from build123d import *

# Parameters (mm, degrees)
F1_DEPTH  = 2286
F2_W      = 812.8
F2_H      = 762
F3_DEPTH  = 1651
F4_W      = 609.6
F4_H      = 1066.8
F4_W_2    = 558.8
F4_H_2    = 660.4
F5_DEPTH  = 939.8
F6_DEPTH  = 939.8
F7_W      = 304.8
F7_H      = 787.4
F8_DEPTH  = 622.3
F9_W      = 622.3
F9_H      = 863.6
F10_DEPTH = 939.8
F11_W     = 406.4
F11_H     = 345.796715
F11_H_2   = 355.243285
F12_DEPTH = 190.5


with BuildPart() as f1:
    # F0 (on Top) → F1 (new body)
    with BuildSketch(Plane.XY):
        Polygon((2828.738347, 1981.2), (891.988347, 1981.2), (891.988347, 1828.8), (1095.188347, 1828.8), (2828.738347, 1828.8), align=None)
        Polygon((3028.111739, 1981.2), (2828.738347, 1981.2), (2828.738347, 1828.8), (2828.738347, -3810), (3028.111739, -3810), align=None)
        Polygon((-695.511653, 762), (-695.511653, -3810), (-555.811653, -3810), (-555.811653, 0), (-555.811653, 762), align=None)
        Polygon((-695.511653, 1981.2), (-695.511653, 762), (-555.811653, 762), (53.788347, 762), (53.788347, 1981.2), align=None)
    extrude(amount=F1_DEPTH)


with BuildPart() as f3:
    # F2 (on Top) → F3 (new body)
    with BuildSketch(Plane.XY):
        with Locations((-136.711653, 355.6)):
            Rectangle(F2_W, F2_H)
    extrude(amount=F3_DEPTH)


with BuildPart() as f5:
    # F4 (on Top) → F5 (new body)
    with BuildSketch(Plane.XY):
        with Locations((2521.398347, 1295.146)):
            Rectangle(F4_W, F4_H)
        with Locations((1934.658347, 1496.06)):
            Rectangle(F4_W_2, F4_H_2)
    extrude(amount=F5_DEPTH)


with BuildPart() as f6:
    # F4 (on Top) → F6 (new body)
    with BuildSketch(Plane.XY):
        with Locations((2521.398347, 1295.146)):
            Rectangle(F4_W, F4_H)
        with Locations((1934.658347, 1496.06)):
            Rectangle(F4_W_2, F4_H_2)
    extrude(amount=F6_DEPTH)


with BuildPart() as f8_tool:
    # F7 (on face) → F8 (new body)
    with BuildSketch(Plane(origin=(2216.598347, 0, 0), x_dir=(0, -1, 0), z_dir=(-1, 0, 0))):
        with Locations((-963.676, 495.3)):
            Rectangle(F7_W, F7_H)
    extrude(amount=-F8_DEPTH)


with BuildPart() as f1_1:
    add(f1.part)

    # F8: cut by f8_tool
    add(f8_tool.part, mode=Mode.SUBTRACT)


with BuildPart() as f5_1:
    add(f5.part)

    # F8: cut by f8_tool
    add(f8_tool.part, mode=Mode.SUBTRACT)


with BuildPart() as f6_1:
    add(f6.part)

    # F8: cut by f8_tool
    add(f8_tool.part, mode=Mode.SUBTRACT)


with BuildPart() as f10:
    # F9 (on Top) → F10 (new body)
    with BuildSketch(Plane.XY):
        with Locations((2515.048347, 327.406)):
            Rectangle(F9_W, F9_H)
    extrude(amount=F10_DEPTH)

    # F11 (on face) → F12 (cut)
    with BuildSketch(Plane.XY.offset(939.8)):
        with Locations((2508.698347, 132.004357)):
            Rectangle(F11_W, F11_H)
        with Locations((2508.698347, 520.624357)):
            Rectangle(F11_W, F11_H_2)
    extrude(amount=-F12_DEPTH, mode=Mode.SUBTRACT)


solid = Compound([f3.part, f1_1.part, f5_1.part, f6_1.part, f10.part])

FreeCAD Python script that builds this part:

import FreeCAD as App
import Part
import Sketcher
Q = App.Units.Quantity

doc = App.newDocument("Part")
body = doc.addObject("PartDesign::Body", "Body")
body.AllowCompound = True

# Sketch on XY plane
sketch1 = doc.addObject("Sketcher::SketchObject", "Sketch")
body.addObject(sketch1)
sketch1.AttachmentSupport = (doc.XY_Plane, [""])
sketch1.MapMode = "FlatFace"
sketch1.addGeometry(Part.LineSegment(App.Vector(892, 1981, 0), App.Vector(892, 1829, 0)), False)
sketch1.addGeometry(Part.LineSegment(App.Vector(892, 1829, 0), App.Vector(2829, 1829, 0)), False)
sketch1.addGeometry(Part.LineSegment(App.Vector(2829, 1829, 0), App.Vector(2829, -3810, 0)), False)
sketch1.addGeometry(Part.LineSegment(App.Vector(2829, -3810, 0), App.Vector(3028, -3810, 0)), False)
sketch1.addGeometry(Part.LineSegment(App.Vector(3028, -3810, 0), App.Vector(3028, 1981, 0)), False)
sketch1.addGeometry(Part.LineSegment(App.Vector(3028, 1981, 0), App.Vector(892, 1981, 0)), False)
sketch1.addGeometry(Part.LineSegment(App.Vector(-696, -3810, 0), App.Vector(-556, -3810, 0)), False)
sketch1.addGeometry(Part.LineSegment(App.Vector(-556, -3810, 0), App.Vector(-556, 762, 0)), False)
sketch1.addGeometry(Part.LineSegment(App.Vector(-556, 762, 0), App.Vector(54, 762, 0)), False)
sketch1.addGeometry(Part.LineSegment(App.Vector(54, 762, 0), App.Vector(54, 1981, 0)), False)
sketch1.addGeometry(Part.LineSegment(App.Vector(54, 1981, 0), App.Vector(-696, 1981, 0)), False)
sketch1.addGeometry(Part.LineSegment(App.Vector(-696, 1981, 0), App.Vector(-696, -3810, 0)), False)
sketch1.addConstraint(Sketcher.Constraint("Coincident", 0, 2, 1, 1))
sketch1.addConstraint(Sketcher.Constraint("Coincident", 1, 2, 2, 1))
sketch1.addConstraint(Sketcher.Constraint("Coincident", 2, 2, 3, 1))
sketch1.addConstraint(Sketcher.Constraint("Coincident", 3, 2, 4, 1))
sketch1.addConstraint(Sketcher.Constraint("Coincident", 4, 2, 5, 1))
sketch1.addConstraint(Sketcher.Constraint("Coincident", 5, 2, 0, 1))
sketch1.addConstraint(Sketcher.Constraint("Coincident", 6, 2, 7, 1))
sketch1.addConstraint(Sketcher.Constraint("Coincident", 7, 2, 8, 1))
sketch1.addConstraint(Sketcher.Constraint("Coincident", 8, 2, 9, 1))
sketch1.addConstraint(Sketcher.Constraint("Coincident", 9, 2, 10, 1))
sketch1.addConstraint(Sketcher.Constraint("Coincident", 10, 2, 11, 1))
sketch1.addConstraint(Sketcher.Constraint("Coincident", 11, 2, 6, 1))
sketch1.addConstraint(Sketcher.Constraint("Vertical", 0))
sketch1.addConstraint(Sketcher.Constraint("Horizontal", 1))
sketch1.addConstraint(Sketcher.Constraint("Vertical", 2))
sketch1.addConstraint(Sketcher.Constraint("Horizontal", 3))
sketch1.addConstraint(Sketcher.Constraint("Vertical", 4))
sketch1.addConstraint(Sketcher.Constraint("Horizontal", 5))
sketch1.addConstraint(Sketcher.Constraint("Horizontal", 6))
sketch1.addConstraint(Sketcher.Constraint("Vertical", 7))
sketch1.addConstraint(Sketcher.Constraint("Horizontal", 8))
sketch1.addConstraint(Sketcher.Constraint("Vertical", 9))
sketch1.addConstraint(Sketcher.Constraint("Horizontal", 10))
sketch1.addConstraint(Sketcher.Constraint("Vertical", 11))
sketch1.addConstraint(Sketcher.Constraint("Horizontal", 3, 2, 6, 2))
sketch1.addConstraint(Sketcher.Constraint("Horizontal", 5, 2, 9, 2))
sketch1.addConstraint(Sketcher.Constraint("DistanceX", 8, 1, 8, 2, Q("24 in")))
sketch1.addConstraint(Sketcher.Constraint("DistanceY", 0, 2, 0, 1, Q("6 in")))
sketch1.addConstraint(Sketcher.Constraint("DistanceY", 2, 2, 2, 1, Q("222 in")))
sketch1.addConstraint(Sketcher.Constraint("DistanceY", 7, 1, 7, 2, Q("180 in")))
sketch1.addConstraint(Sketcher.Constraint("DistanceX", 6, 1, 6, 2, Q("5.5 in")))
sketch1.addConstraint(Sketcher.Constraint("DistanceY", -1, 1, 0, 2, Q("72 in")))
sketch1.addConstraint(Sketcher.Constraint("DistanceX", 6, 2, 0, 2, Q("57 in")))
sketch1.addConstraint(Sketcher.Constraint("DistanceX", 1, 1, 1, 2, Q("76.25 in")))
sketch1.addConstraint(Sketcher.Constraint("DistanceX", 3, 1, 3, 2, 199.373392))
sketch1.addConstraint(Sketcher.Constraint("DistanceX", -1, 1, 3, 2, 3028.111739))
pad1 = doc.addObject("PartDesign::Pad", "Pad")
body.addObject(pad1)
pad1.Profile = sketch1
pad1.Length = Q("90 in")
body2 = doc.addObject("PartDesign::Body", "Body001")

# Sketch on XY plane
sketch2 = doc.addObject("Sketcher::SketchObject", "Sketch001")
body2.addObject(sketch2)
sketch2.AttachmentSupport = (doc.getObject("XY_Plane001"), [""])
sketch2.MapMode = "FlatFace"
sketch2.addGeometry(Part.LineSegment(App.Vector(-543, 737, 0), App.Vector(-543, -25, 0)), False)
sketch2.addGeometry(Part.LineSegment(App.Vector(-543, -25, 0), App.Vector(270, -25, 0)), False)
sketch2.addGeometry(Part.LineSegment(App.Vector(270, -25, 0), App.Vector(270, 737, 0)), False)
sketch2.addGeometry(Part.LineSegment(App.Vector(270, 737, 0), App.Vector(-543, 737, 0)), False)
sketch2.addConstraint(Sketcher.Constraint("Coincident", 0, 2, 1, 1))
sketch2.addConstraint(Sketcher.Constraint("Coincident", 1, 2, 2, 1))
sketch2.addConstraint(Sketcher.Constraint("Coincident", 2, 2, 3, 1))
sketch2.addConstraint(Sketcher.Constraint("Coincident", 3, 2, 0, 1))
sketch2.addConstraint(Sketcher.Constraint("Vertical", 0))
sketch2.addConstraint(Sketcher.Constraint("Horizontal", 1))
sketch2.addConstraint(Sketcher.Constraint("Vertical", 2))
sketch2.addConstraint(Sketcher.Constraint("Horizontal", 3))
sketch2.addConstraint(Sketcher.Constraint("DistanceX", 1, 1, 1, 2, Q("32 in")))
sketch2.addConstraint(Sketcher.Constraint("DistanceY", 0, 2, 0, 1, Q("30 in")))
sketch2.addConstraint(Sketcher.Constraint("DistanceY", 0, 2, -1, 1, Q("1 in")))
sketch2.addConstraint(Sketcher.Constraint("DistanceX", 0, 2, -1, 1, 543.111653))
pad2 = doc.addObject("PartDesign::Pad", "Pad001")
body2.addObject(pad2)
pad2.Profile = sketch2
pad2.Length = Q("65 in")
body3 = doc.addObject("PartDesign::Body", "Body002")
body3.AllowCompound = True

# Sketch on XY plane
sketch3 = doc.addObject("Sketcher::SketchObject", "Sketch002")
body3.addObject(sketch3)
sketch3.AttachmentSupport = (doc.getObject("XY_Plane002"), [""])
sketch3.MapMode = "FlatFace"
sketch3.addGeometry(Part.LineSegment(App.Vector(2217, 1829, 0), App.Vector(2217, 762, 0)), False)
sketch3.addGeometry(Part.LineSegment(App.Vector(2217, 762, 0), App.Vector(2826, 762, 0)), False)
sketch3.addGeometry(Part.LineSegment(App.Vector(2826, 762, 0), App.Vector(2826, 1829, 0)), False)
sketch3.addGeometry(Part.LineSegment(App.Vector(2826, 1829, 0), App.Vector(2217, 1829, 0)), False)
sketch3.addGeometry(Part.LineSegment(App.Vector(1655, 1826, 0), App.Vector(1655, 1166, 0)), False)
sketch3.addGeometry(Part.LineSegment(App.Vector(1655, 1166, 0), App.Vector(2214, 1166, 0)), False)
sketch3.addGeometry(Part.LineSegment(App.Vector(2214, 1166, 0), App.Vector(2214, 1826, 0)), False)
sketch3.addGeometry(Part.LineSegment(App.Vector(2214, 1826, 0), App.Vector(1655, 1826, 0)), False)
sketch3.addConstraint(Sketcher.Constraint("Coincident", 0, 2, 1, 1))
sketch3.addConstraint(Sketcher.Constraint("Coincident", 1, 2, 2, 1))
sketch3.addConstraint(Sketcher.Constraint("Coincident", 2, 2, 3, 1))
sketch3.addConstraint(Sketcher.Constraint("Coincident", 3, 2, 0, 1))
sketch3.addConstraint(Sketcher.Constraint("Coincident", 4, 2, 5, 1))
sketch3.addConstraint(Sketcher.Constraint("Coincident", 5, 2, 6, 1))
sketch3.addConstraint(Sketcher.Constraint("Coincident", 6, 2, 7, 1))
sketch3.addConstraint(Sketcher.Constraint("Coincident", 7, 2, 4, 1))
sketch3.addConstraint(Sketcher.Constraint("Vertical", 0))
sketch3.addConstraint(Sketcher.Constraint("Horizontal", 1))
sketch3.addConstraint(Sketcher.Constraint("Vertical", 2))
sketch3.addConstraint(Sketcher.Constraint("Horizontal", 3))
sketch3.addConstraint(Sketcher.Constraint("Vertical", 4))
sketch3.addConstraint(Sketcher.Constraint("Horizontal", 5))
sketch3.addConstraint(Sketcher.Constraint("Vertical", 6))
sketch3.addConstraint(Sketcher.Constraint("Horizontal", 7))
sketch3.addConstraint(Sketcher.Constraint("DistanceX", 1, 1, 1, 2, Q("24 in")))
sketch3.addConstraint(Sketcher.Constraint("DistanceX", 5, 1, 5, 2, Q("22 in")))
sketch3.addConstraint(Sketcher.Constraint("DistanceY", 0, 2, 0, 1, Q("42 in")))
sketch3.addConstraint(Sketcher.Constraint("DistanceY", 4, 2, 4, 1, Q("26 in")))
sketch3.addConstraint(Sketcher.Constraint("DistanceY", -1, 1, 4, 2, Q("45.9 in")))
sketch3.addConstraint(Sketcher.Constraint("DistanceX", 4, 2, 0, 2, Q("22.1 in")))
sketch3.addConstraint(Sketcher.Constraint("DistanceY", -1, 1, 0, 2, Q("29.99 in")))
sketch3.addConstraint(Sketcher.Constraint("DistanceX", -1, 1, 0, 2, 2216.598347))
pad3 = doc.addObject("PartDesign::Pad", "Pad002")
body3.addObject(pad3)
pad3.Profile = sketch3
pad3.Length = Q("37 in")
body4 = doc.addObject("PartDesign::Body", "Body003")
body4.AllowCompound = True

# Sketch on XY plane
sketch4 = doc.addObject("Sketcher::SketchObject", "Sketch003")
body4.addObject(sketch4)
sketch4.AttachmentSupport = (doc.getObject("XY_Plane003"), [""])
sketch4.MapMode = "FlatFace"
sketch4.addGeometry(Part.LineSegment(App.Vector(2217, 1829, 0), App.Vector(2217, 762, 0)), False)
sketch4.addGeometry(Part.LineSegment(App.Vector(2217, 762, 0), App.Vector(2826, 762, 0)), False)
sketch4.addGeometry(Part.LineSegment(App.Vector(2826, 762, 0), App.Vector(2826, 1829, 0)), False)
sketch4.addGeometry(Part.LineSegment(App.Vector(2826, 1829, 0), App.Vector(2217, 1829, 0)), False)
sketch4.addGeometry(Part.LineSegment(App.Vector(1655, 1826, 0), App.Vector(1655, 1166, 0)), False)
sketch4.addGeometry(Part.LineSegment(App.Vector(1655, 1166, 0), App.Vector(2214, 1166, 0)), False)
sketch4.addGeometry(Part.LineSegment(App.Vector(2214, 1166, 0), App.Vector(2214, 1826, 0)), False)
sketch4.addGeometry(Part.LineSegment(App.Vector(2214, 1826, 0), App.Vector(1655, 1826, 0)), False)
sketch4.addConstraint(Sketcher.Constraint("Coincident", 0, 2, 1, 1))
sketch4.addConstraint(Sketcher.Constraint("Coincident", 1, 2, 2, 1))
sketch4.addConstraint(Sketcher.Constraint("Coincident", 2, 2, 3, 1))
sketch4.addConstraint(Sketcher.Constraint("Coincident", 3, 2, 0, 1))
sketch4.addConstraint(Sketcher.Constraint("Coincident", 4, 2, 5, 1))
sketch4.addConstraint(Sketcher.Constraint("Coincident", 5, 2, 6, 1))
sketch4.addConstraint(Sketcher.Constraint("Coincident", 6, 2, 7, 1))
sketch4.addConstraint(Sketcher.Constraint("Coincident", 7, 2, 4, 1))
sketch4.addConstraint(Sketcher.Constraint("Vertical", 0))
sketch4.addConstraint(Sketcher.Constraint("Horizontal", 1))
sketch4.addConstraint(Sketcher.Constraint("Vertical", 2))
sketch4.addConstraint(Sketcher.Constraint("Horizontal", 3))
sketch4.addConstraint(Sketcher.Constraint("Vertical", 4))
sketch4.addConstraint(Sketcher.Constraint("Horizontal", 5))
sketch4.addConstraint(Sketcher.Constraint("Vertical", 6))
sketch4.addConstraint(Sketcher.Constraint("Horizontal", 7))
sketch4.addConstraint(Sketcher.Constraint("DistanceX", 1, 1, 1, 2, Q("24 in")))
sketch4.addConstraint(Sketcher.Constraint("DistanceX", 5, 1, 5, 2, Q("22 in")))
sketch4.addConstraint(Sketcher.Constraint("DistanceY", 0, 2, 0, 1, Q("42 in")))
sketch4.addConstraint(Sketcher.Constraint("DistanceY", 4, 2, 4, 1, Q("26 in")))
sketch4.addConstraint(Sketcher.Constraint("DistanceY", -1, 1, 4, 2, Q("45.9 in")))
sketch4.addConstraint(Sketcher.Constraint("DistanceX", 4, 2, 0, 2, Q("22.1 in")))
sketch4.addConstraint(Sketcher.Constraint("DistanceY", -1, 1, 0, 2, Q("29.99 in")))
sketch4.addConstraint(Sketcher.Constraint("DistanceX", -1, 1, 0, 2, 2216.598347))
pad4 = doc.addObject("PartDesign::Pad", "Pad003")
body4.addObject(pad4)
pad4.Profile = sketch4
pad4.Length = Q("37 in")
body5 = doc.addObject("PartDesign::Body", "Body004")

# Sketch on YZ plane
sketch5 = doc.addObject("Sketcher::SketchObject", "Sketch004")
body5.addObject(sketch5)
sketch5.AttachmentSupport = (doc.getObject("YZ_Plane004"), [""])
sketch5.MapMode = "FlatFace"
sketch5.AttachmentOffset = App.Placement(App.Vector(0, 0, 2216.598347), App.Rotation())
sketch5.addGeometry(Part.LineSegment(App.Vector(1116, 889, 0), App.Vector(1116, 102, 0)), False)
sketch5.addGeometry(Part.LineSegment(App.Vector(1116, 102, 0), App.Vector(811, 102, 0)), False)
sketch5.addGeometry(Part.LineSegment(App.Vector(811, 102, 0), App.Vector(811, 889, 0)), False)
sketch5.addGeometry(Part.LineSegment(App.Vector(811, 889, 0), App.Vector(1116, 889, 0)), False)
sketch5.addConstraint(Sketcher.Constraint("Coincident", 0, 2, 1, 1))
sketch5.addConstraint(Sketcher.Constraint("Coincident", 1, 2, 2, 1))
sketch5.addConstraint(Sketcher.Constraint("Coincident", 2, 2, 3, 1))
sketch5.addConstraint(Sketcher.Constraint("Coincident", 3, 2, 0, 1))
sketch5.addConstraint(Sketcher.Constraint("Vertical", 0))
sketch5.addConstraint(Sketcher.Constraint("Horizontal", 1))
sketch5.addConstraint(Sketcher.Constraint("Vertical", 2))
sketch5.addConstraint(Sketcher.Constraint("Horizontal", 3))
sketch5.addConstraint(Sketcher.Constraint("DistanceX", 1, 2, 1, 1, Q("12 in")))
sketch5.addConstraint(Sketcher.Constraint("DistanceY", 0, 2, 0, 1, Q("31 in")))
sketch5.addConstraint(Sketcher.Constraint("DistanceY", -1, 1, 0, 2, Q("4 in")))
sketch5.addConstraint(Sketcher.Constraint("DistanceX", -1, 1, 0, 2, Q("43.94 in")))
pad5 = doc.addObject("PartDesign::Pad", "Pad004")
body5.addObject(pad5)
pad5.Profile = sketch5
pad5.Length = Q("24.5 in")
body.AllowCompound = True
doc.recompute()

body6 = doc.addObject("PartDesign::Body", "Body005")
body6.BaseFeature = body5
boolean = doc.addObject("PartDesign::Boolean", "Boolean")
body.addObject(boolean)
boolean.Type = "Cut"
boolean.addObjects([body6])
doc.recompute()
body3.AllowCompound = True
doc.recompute()

body7 = doc.addObject("PartDesign::Body", "Body006")
body7.BaseFeature = body5
boolean2 = doc.addObject("PartDesign::Boolean", "Boolean001")
body3.addObject(boolean2)
boolean2.Type = "Cut"
boolean2.addObjects([body7])
doc.recompute()
body4.AllowCompound = True
doc.recompute()

boolean3 = doc.addObject("PartDesign::Boolean", "Boolean002")
body4.addObject(boolean3)
boolean3.Type = "Cut"
boolean3.addObjects([body5])
body8 = doc.addObject("PartDesign::Body", "Body007")

# Sketch on XY plane
sketch6 = doc.addObject("Sketcher::SketchObject", "Sketch005")
body8.addObject(sketch6)
sketch6.AttachmentSupport = (doc.getObject("XY_Plane007"), [""])
sketch6.MapMode = "FlatFace"
sketch6.addGeometry(Part.LineSegment(App.Vector(2204, 759, 0), App.Vector(2204, -104, 0)), False)
sketch6.addGeometry(Part.LineSegment(App.Vector(2204, -104, 0), App.Vector(2826, -104, 0)), False)
sketch6.addGeometry(Part.LineSegment(App.Vector(2826, -104, 0), App.Vector(2826, 759, 0)), False)
sketch6.addGeometry(Part.LineSegment(App.Vector(2826, 759, 0), App.Vector(2204, 759, 0)), False)
sketch6.addConstraint(Sketcher.Constraint("Coincident", 0, 2, 1, 1))
sketch6.addConstraint(Sketcher.Constraint("Coincident", 1, 2, 2, 1))
sketch6.addConstraint(Sketcher.Constraint("Coincident", 2, 2, 3, 1))
sketch6.addConstraint(Sketcher.Constraint("Coincident", 3, 2, 0, 1))
sketch6.addConstraint(Sketcher.Constraint("Vertical", 0))
sketch6.addConstraint(Sketcher.Constraint("Horizontal", 1))
sketch6.addConstraint(Sketcher.Constraint("Vertical", 2))
sketch6.addConstraint(Sketcher.Constraint("Horizontal", 3))
sketch6.addConstraint(Sketcher.Constraint("DistanceY", 0, 2, 0, 1, Q("34 in")))
sketch6.addConstraint(Sketcher.Constraint("DistanceX", 1, 1, 1, 2, Q("24.5 in")))
sketch6.addConstraint(Sketcher.Constraint("DistanceY", 0, 2, -1, 1, Q("4.11 in")))
sketch6.addConstraint(Sketcher.Constraint("DistanceX", -1, 1, 0, 2, 2203.898347))
pad6 = doc.addObject("PartDesign::Pad", "Pad005")
body8.addObject(pad6)
pad6.Profile = sketch6
pad6.Length = Q("37 in")

# Sketch on XY plane
sketch7 = doc.addObject("Sketcher::SketchObject", "Sketch006")
body8.addObject(sketch7)
sketch7.AttachmentSupport = (doc.getObject("XY_Plane007"), [""])
sketch7.MapMode = "FlatFace"
sketch7.AttachmentOffset = App.Placement(App.Vector(0, 0, 37 * 25.4), App.Rotation())
sketch7.addGeometry(Part.LineSegment(App.Vector(2305, 305, 0), App.Vector(2305, -41, 0)), False)
sketch7.addGeometry(Part.LineSegment(App.Vector(2305, -41, 0), App.Vector(2712, -41, 0)), False)
sketch7.addGeometry(Part.LineSegment(App.Vector(2712, -41, 0), App.Vector(2712, 305, 0)), False)
sketch7.addGeometry(Part.LineSegment(App.Vector(2712, 305, 0), App.Vector(2305, 305, 0)), False)
sketch7.addGeometry(Part.LineSegment(App.Vector(2305, 698, 0), App.Vector(2305, 343, 0)), False)
sketch7.addGeometry(Part.LineSegment(App.Vector(2305, 343, 0), App.Vector(2712, 343, 0)), False)
sketch7.addGeometry(Part.LineSegment(App.Vector(2712, 343, 0), App.Vector(2712, 698, 0)), False)
sketch7.addGeometry(Part.LineSegment(App.Vector(2712, 698, 0), App.Vector(2305, 698, 0)), False)
sketch7.addConstraint(Sketcher.Constraint("Coincident", 0, 2, 1, 1))
sketch7.addConstraint(Sketcher.Constraint("Coincident", 1, 2, 2, 1))
sketch7.addConstraint(Sketcher.Constraint("Coincident", 2, 2, 3, 1))
sketch7.addConstraint(Sketcher.Constraint("Coincident", 3, 2, 0, 1))
sketch7.addConstraint(Sketcher.Constraint("Coincident", 4, 2, 5, 1))
sketch7.addConstraint(Sketcher.Constraint("Coincident", 5, 2, 6, 1))
sketch7.addConstraint(Sketcher.Constraint("Coincident", 6, 2, 7, 1))
sketch7.addConstraint(Sketcher.Constraint("Coincident", 7, 2, 4, 1))
sketch7.addConstraint(Sketcher.Constraint("Vertical", 0))
sketch7.addConstraint(Sketcher.Constraint("Horizontal", 1))
sketch7.addConstraint(Sketcher.Constraint("Vertical", 2))
sketch7.addConstraint(Sketcher.Constraint("Horizontal", 3))
sketch7.addConstraint(Sketcher.Constraint("Vertical", 4))
sketch7.addConstraint(Sketcher.Constraint("Horizontal", 5))
sketch7.addConstraint(Sketcher.Constraint("Vertical", 6))
sketch7.addConstraint(Sketcher.Constraint("Horizontal", 7))
sketch7.addConstraint(Sketcher.Constraint("Vertical", 3, 2, 4, 2))
sketch7.addConstraint(Sketcher.Constraint("Vertical", 2, 2, 5, 2))
sketch7.addConstraint(Sketcher.Constraint("DistanceX", 1, 1, 1, 2, Q("16 in")))
sketch7.addConstraint(Sketcher.Constraint("DistanceY", 3, 2, 4, 2, Q("1.5 in")))
sketch7.addConstraint(Sketcher.Constraint("DistanceY", 1, 2, 6, 2, Q("29.1 in")))
sketch7.addConstraint(Sketcher.Constraint("DistanceY", 0, 2, -1, 1, Q("1.61 in")))
sketch7.addConstraint(Sketcher.Constraint("DistanceY", 0, 2, 0, 1, 345.796715))
sketch7.addConstraint(Sketcher.Constraint("DistanceX", -1, 1, 0, 2, 2305.498347))
pocket1 = doc.addObject("PartDesign::Pocket", "Pocket")
body8.addObject(pocket1)
pocket1.Profile = sketch7
pocket1.Length = Q("7.5 in")

doc.recompute()
